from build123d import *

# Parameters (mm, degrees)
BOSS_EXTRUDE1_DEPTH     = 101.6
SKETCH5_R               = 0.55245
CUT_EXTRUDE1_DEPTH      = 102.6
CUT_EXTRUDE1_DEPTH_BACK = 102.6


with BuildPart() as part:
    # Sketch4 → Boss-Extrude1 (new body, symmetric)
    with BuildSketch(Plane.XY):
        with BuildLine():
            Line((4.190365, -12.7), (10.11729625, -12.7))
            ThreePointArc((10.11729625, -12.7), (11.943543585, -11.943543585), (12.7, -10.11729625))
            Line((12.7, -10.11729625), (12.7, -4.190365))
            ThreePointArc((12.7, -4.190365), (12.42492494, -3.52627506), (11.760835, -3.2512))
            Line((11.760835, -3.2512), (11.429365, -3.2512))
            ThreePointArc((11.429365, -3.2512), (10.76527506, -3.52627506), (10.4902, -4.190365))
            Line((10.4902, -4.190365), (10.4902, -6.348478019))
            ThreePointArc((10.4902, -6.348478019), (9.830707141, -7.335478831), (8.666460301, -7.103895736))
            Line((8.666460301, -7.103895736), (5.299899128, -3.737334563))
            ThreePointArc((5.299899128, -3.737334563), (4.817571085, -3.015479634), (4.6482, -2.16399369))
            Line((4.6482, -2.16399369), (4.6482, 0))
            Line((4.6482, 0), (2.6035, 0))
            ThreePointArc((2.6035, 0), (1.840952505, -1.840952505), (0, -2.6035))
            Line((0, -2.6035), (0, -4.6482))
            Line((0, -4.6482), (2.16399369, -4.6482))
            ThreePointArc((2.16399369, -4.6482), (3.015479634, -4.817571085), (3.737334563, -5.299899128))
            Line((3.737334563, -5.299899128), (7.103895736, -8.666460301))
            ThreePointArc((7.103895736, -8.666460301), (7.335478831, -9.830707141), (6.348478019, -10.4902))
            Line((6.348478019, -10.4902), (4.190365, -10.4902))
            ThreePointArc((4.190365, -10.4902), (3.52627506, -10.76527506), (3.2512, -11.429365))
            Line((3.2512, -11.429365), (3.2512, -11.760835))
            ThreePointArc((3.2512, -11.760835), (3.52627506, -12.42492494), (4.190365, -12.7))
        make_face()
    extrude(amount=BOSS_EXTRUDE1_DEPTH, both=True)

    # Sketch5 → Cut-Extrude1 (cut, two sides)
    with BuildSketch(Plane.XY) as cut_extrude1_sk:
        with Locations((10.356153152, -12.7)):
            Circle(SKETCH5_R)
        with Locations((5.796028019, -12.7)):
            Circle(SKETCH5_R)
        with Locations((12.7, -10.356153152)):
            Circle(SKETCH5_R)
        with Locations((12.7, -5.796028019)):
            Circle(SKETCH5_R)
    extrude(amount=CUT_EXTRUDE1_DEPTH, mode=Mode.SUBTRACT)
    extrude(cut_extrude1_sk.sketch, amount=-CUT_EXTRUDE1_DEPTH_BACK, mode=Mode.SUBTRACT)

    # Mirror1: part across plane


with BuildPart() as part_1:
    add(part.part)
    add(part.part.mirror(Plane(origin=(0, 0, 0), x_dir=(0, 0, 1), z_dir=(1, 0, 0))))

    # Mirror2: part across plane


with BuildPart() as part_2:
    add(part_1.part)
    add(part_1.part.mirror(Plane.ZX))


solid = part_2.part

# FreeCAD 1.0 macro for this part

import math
import FreeCAD as App
import Part
import Sketcher
from FreeCAD import Vector
Q = App.Units.Quantity

doc = App.newDocument("Part")
body = doc.addObject("PartDesign::Body", "Body")

# Sketch on XY plane
sketch1 = body.newObject("Sketcher::SketchObject", "Sketch")
sketch1.AttachmentSupport = (doc.getObject("XY_Plane"), [""])
sketch1.MapMode = "FlatFace"
sketch1.addGeometry([
    Part.LineSegment(Vector(4.19, -12.7, 0), Vector(10.12, -12.7, 0)),  # 0
    Part.ArcOfCircle(Part.Circle(Vector(10.12, -10.12, 0), Vector(0, 0, 1), 2.58), math.radians(-90), math.radians(0)),  # 1
    Part.LineSegment(Vector(12.7, -10.12, 0), Vector(12.7, -4.19, 0)),  # 2
    Part.ArcOfCircle(Part.Circle(Vector(11.76, -4.19, 0), Vector(0, 0, 1), 0.94), math.radians(0), math.radians(90)),  # 3
    Part.LineSegment(Vector(11.76, -3.25, 0), Vector(11.43, -3.25, 0)),  # 4
    Part.ArcOfCircle(Part.Circle(Vector(11.43, -4.19, 0), Vector(0, 0, 1), 0.94), math.radians(90), math.radians(180)),  # 5
    Part.LineSegment(Vector(10.49, -4.19, 0), Vector(10.49, -6.35, 0)),  # 6
    Part.ArcOfCircle(Part.Circle(Vector(9.42, -6.35, 0), Vector(0, 0, 1), 1.07), math.radians(-135), math.radians(0)),  # 7
    Part.LineSegment(Vector(8.67, -7.1, 0), Vector(5.3, -3.74, 0)),  # 8
    Part.ArcOfCircle(Part.Circle(Vector(6.87, -2.16, 0), Vector(0, 0, 1), 2.23), math.radians(-180), math.radians(-135)),  # 9
    Part.LineSegment(Vector(4.65, -2.16, 0), Vector(4.65, 0, 0)),  # 10
    Part.LineSegment(Vector(4.65, 0, 0), Vector(2.6, 0, 0)),  # 11
    Part.ArcOfCircle(Part.Circle(Vector(0, 0, 0), Vector(0, 0, 1), 2.6), math.radians(-90), math.radians(0)),  # 12
    Part.LineSegment(Vector(0, -2.6, 0), Vector(0, -4.65, 0)),  # 13
    Part.LineSegment(Vector(0, -4.65, 0), Vector(2.16, -4.65, 0)),  # 14
    Part.ArcOfCircle(Part.Circle(Vector(2.16, -6.87, 0), Vector(0, 0, 1), 2.23), math.radians(45), math.radians(90)),  # 15
    Part.LineSegment(Vector(3.74, -5.3, 0), Vector(7.1, -8.67, 0)),  # 16
    Part.ArcOfCircle(Part.Circle(Vector(6.35, -9.42, 0), Vector(0, 0, 1), 1.07), math.radians(-90), math.radians(45)),  # 17
    Part.LineSegment(Vector(6.35, -10.49, 0), Vector(4.19, -10.49, 0)),  # 18
    Part.ArcOfCircle(Part.Circle(Vector(4.19, -11.43, 0), Vector(0, 0, 1), 0.94), math.radians(90), math.radians(180)),  # 19
    Part.LineSegment(Vector(3.25, -11.43, 0), Vector(3.25, -11.76, 0)),  # 20
    Part.ArcOfCircle(Part.Circle(Vector(4.19, -11.76, 0), Vector(0, 0, 1), 0.94), math.radians(-180), math.radians(-90)),  # 21
], False)
sketch1.addConstraint([
    Sketcher.Constraint("Tangent", 0, 2, 1, 1),
    Sketcher.Constraint("Tangent", 1, 2, 2, 1),
    Sketcher.Constraint("Tangent", 2, 2, 3, 1),
    Sketcher.Constraint("Tangent", 3, 2, 4, 1),
    Sketcher.Constraint("Tangent", 4, 2, 5, 1),
    Sketcher.Constraint("Tangent", 5, 2, 6, 1),
    Sketcher.Constraint("Tangent", 6, 2, 7, 2),
    Sketcher.Constraint("Tangent", 7, 1, 8, 1),
    Sketcher.Constraint("Tangent", 8, 2, 9, 2),
    Sketcher.Constraint("Tangent", 9, 1, 10, 1),
    Sketcher.Constraint("Coincident", 10, 2, 11, 1),
    Sketcher.Constraint("Coincident", 11, 2, 12, 2),
    Sketcher.Constraint("Coincident", 12, 1, 13, 1),
    Sketcher.Constraint("Coincident", 13, 2, 14, 1),
    Sketcher.Constraint("Tangent", 14, 2, 15, 2),
    Sketcher.Constraint("Tangent", 15, 1, 16, 1),
    Sketcher.Constraint("Tangent", 16, 2, 17, 2),
    Sketcher.Constraint("Tangent", 17, 1, 18, 1),
    Sketcher.Constraint("Tangent", 18, 2, 19, 1),
    Sketcher.Constraint("Tangent", 19, 2, 20, 1),
    Sketcher.Constraint("Tangent", 20, 2, 21, 1),
    Sketcher.Constraint("Tangent", 21, 2, 0, 1),
    Sketcher.Constraint("Horizontal", 0),
    Sketcher.Constraint("Vertical", 2),
    Sketcher.Constraint("Horizontal", 4),
    Sketcher.Constraint("Vertical", 6),
    Sketcher.Constraint("Vertical", 10),
    Sketcher.Constraint("Horizontal", 11),
    Sketcher.Constraint("Vertical", 13),
    Sketcher.Constraint("Horizontal", 14),
    Sketcher.Constraint("Horizontal", 18),
    Sketcher.Constraint("Vertical", 20),
    Sketcher.Constraint("Coincident", 12, 3, -1, 1),
    Sketcher.Constraint("Equal", 3, 5),
    Sketcher.Constraint("Equal", 9, 15),
    Sketcher.Constraint("Equal", 7, 17),
    Sketcher.Constraint("Equal", 5, 19),
    Sketcher.Constraint("Equal", 19, 21),
    Sketcher.Constraint("PointOnObject", 10, 2, -1),
    Sketcher.Constraint("PointOnObject", 12, 1, -2),
    Sketcher.Constraint("Parallel", 8, 16),
    Sketcher.Constraint("Equal", 0, 2),
    Sketcher.Constraint("Equal", 18, 6),
    Sketcher.Constraint("Equal", 14, 10),
    Sketcher.Constraint("Equal", 11, 13),
    Sketcher.Constraint("Equal", 4, 20),
    Sketcher.Constraint("Equal", 8, 16),
    Sketcher.Constraint("DistanceY", 0, 2, -1, 1, Q("0.5 in")),
    Sketcher.Constraint("Radius", 9, Q("0.0876 in")),
    Sketcher.Constraint("Radius", 12, Q("0.1025 in")),
    Sketcher.Constraint("DistanceX", 9, 1, 5, 2, Q("0.23 in")),
    Sketcher.Constraint("DistanceX", 11, 2, 11, 1, Q("0.0805 in")),
    Sketcher.Constraint("DistanceY", 3, 2, -1, 1, Q("0.128 in")),
    Sketcher.Constraint("Radius", 7, 1.068322),
    Sketcher.Constraint("DistanceX", 17, 3, 7, 3, Q("0.121 in")),
    Sketcher.Constraint("Radius", 1, 2.582704),
    Sketcher.Constraint("Radius", 3, 0.939165),
])
pad1 = body.newObject("PartDesign::Pad", "Pad")
pad1.Profile = sketch1
pad1.Length = Q("8 in")
pad1.Midplane = True

# Sketch on XY plane
sketch2 = body.newObject("Sketcher::SketchObject", "Sketch001")
sketch2.AttachmentSupport = (doc.getObject("XY_Plane"), [""])
sketch2.MapMode = "FlatFace"
sketch2.addGeometry([
    Part.Circle(Vector(10.4, -12.7, 0), Vector(0, 0, 1), 0.6),
    Part.Circle(Vector(5.8, -12.7, 0), Vector(0, 0, 1), 0.6),
    Part.Circle(Vector(12.7, -10.4, 0), Vector(0, 0, 1), 0.6),
    Part.Circle(Vector(12.7, -5.8, 0), Vector(0, 0, 1), 0.6),
], False)
sketch2.addConstraint([
    Sketcher.Constraint("Equal", 0, 1),
    Sketcher.Constraint("Equal", 1, 2),
    Sketcher.Constraint("Equal", 2, 3),
    Sketcher.Constraint("Horizontal", 0, 3, 1, 3),
    Sketcher.Constraint("Vertical", 2, 3, 3, 3),
    Sketcher.Constraint("Diameter", 0, Q("0.0435 in")),
    Sketcher.Constraint("DistanceY", 0, 3, -1, 1, Q("0.5 in")),
    Sketcher.Constraint("DistanceX", -1, 1, 2, 3, Q("0.5 in")),
    Sketcher.Constraint("DistanceX", -1, 1, 1, 3, 5.796028),
    Sketcher.Constraint("DistanceY", 3, 3, -1, 1, 5.796028),
    Sketcher.Constraint("DistanceX", -1, 1, 0, 3, 10.356153),
    Sketcher.Constraint("DistanceY", 2, 3, -1, 1, 10.356153),
])
pocket1 = body.newObject("PartDesign::Pocket", "Pocket")
pocket1.Profile = sketch2
pocket1.Type = "ThroughAll"
pocket1.Midplane = True
body2 = doc.addObject("PartDesign::Body", "Body001")
doc.recompute()

body2.BaseFeature = body
doc.recompute()

mirroring = doc.addObject("Part::Mirroring", "Mirroring")
mirroring.Source = body
mirroring.Base = Vector(0, 0, 0)
mirroring.Normal = Vector(1, 0, 0)
body3 = doc.addObject("PartDesign::Body", "Body002")
body3.BaseFeature = mirroring
boolean = body2.newObject("PartDesign::Boolean", "Boolean")
boolean.Type = "Fuse"
boolean.addObjects([body3])
doc.recompute()
body4 = doc.addObject("PartDesign::Body", "Body003")
doc.recompute()

body4.BaseFeature = body2
doc.recompute()

mirroring2 = doc.addObject("Part::Mirroring", "Mirroring001")
mirroring2.Source = body2
mirroring2.Base = Vector(0, 0, 0)
mirroring2.Normal = Vector(0, 1, 0)
body5 = doc.addObject("PartDesign::Body", "Body004")
body5.BaseFeature = mirroring2
boolean2 = body4.newObject("PartDesign::Boolean", "Boolean001")
boolean2.Type = "Fuse"
boolean2.addObjects([body5])
doc.recompute()
mirroring.Visibility = False
mirroring2.Visibility = False

doc.recompute()
